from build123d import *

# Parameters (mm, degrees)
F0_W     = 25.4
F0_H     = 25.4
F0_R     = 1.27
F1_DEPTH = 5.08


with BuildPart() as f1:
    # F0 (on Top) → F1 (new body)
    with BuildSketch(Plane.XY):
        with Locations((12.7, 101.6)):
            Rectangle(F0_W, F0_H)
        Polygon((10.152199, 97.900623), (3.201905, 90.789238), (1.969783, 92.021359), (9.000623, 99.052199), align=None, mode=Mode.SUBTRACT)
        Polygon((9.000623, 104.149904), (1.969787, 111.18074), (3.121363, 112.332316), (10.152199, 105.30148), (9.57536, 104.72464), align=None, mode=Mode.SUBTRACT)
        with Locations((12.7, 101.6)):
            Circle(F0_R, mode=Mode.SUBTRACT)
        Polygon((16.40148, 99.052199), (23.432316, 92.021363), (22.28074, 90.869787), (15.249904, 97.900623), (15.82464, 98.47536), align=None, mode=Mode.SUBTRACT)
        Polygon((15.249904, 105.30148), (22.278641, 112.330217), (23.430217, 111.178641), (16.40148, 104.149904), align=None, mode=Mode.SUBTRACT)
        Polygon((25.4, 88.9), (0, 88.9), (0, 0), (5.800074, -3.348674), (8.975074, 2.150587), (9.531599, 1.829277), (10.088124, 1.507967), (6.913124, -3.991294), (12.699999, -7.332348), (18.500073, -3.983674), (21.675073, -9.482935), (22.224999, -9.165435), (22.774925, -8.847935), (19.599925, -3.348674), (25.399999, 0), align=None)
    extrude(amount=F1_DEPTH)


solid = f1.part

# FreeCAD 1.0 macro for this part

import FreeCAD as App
import Part
import Sketcher

V = App.Vector
Q = App.Units.Quantity

doc = App.newDocument("Part")
body = doc.addObject("PartDesign::Body", "Body")

# Sketch on XY plane
sketch1 = doc.addObject("Sketcher::SketchObject", "Sketch")
body.addObject(sketch1)
sketch1.AttachmentSupport = (doc.XY_Plane, [""])
sketch1.MapMode = "FlatFace"
sketch1.addGeometry(Part.LineSegment(V(0, 114.3, 0), V(0, 0, 0)), False)
sketch1.addGeometry(Part.LineSegment(V(0, 0, 0), V(5.800074, -3.348674, 0)), False)
sketch1.addGeometry(Part.LineSegment(V(5.800074, -3.348674, 0), V(8.975074, 2.150587, 0)), False)
sketch1.addGeometry(Part.LineSegment(V(8.975074, 2.150587, 0), V(10.088124, 1.507967, 0)), False)
sketch1.addGeometry(Part.LineSegment(V(10.088124, 1.507967, 0), V(6.913124, -3.991294, 0)), False)
sketch1.addGeometry(Part.LineSegment(V(6.913124, -3.991294, 0), V(12.699999, -7.332348, 0)), False)
sketch1.addGeometry(Part.LineSegment(V(12.699999, -7.332348, 0), V(18.500073, -3.983674, 0)), False)
sketch1.addGeometry(Part.LineSegment(V(18.500073, -3.983674, 0), V(21.675073, -9.482935, 0)), False)
sketch1.addGeometry(Part.LineSegment(V(21.675073, -9.482935, 0), V(22.774925, -8.847935, 0)), False)
sketch1.addGeometry(Part.LineSegment(V(22.774925, -8.847935, 0), V(19.599925, -3.348674, 0)), False)
sketch1.addGeometry(Part.LineSegment(V(19.599925, -3.348674, 0), V(25.399999, 0, 0)), False)
sketch1.addGeometry(Part.LineSegment(V(25.399999, 0, 0), V(25.4, 88.9, 0)), False)
sketch1.addGeometry(Part.LineSegment(V(25.4, 88.9, 0), V(25.4, 114.3, 0)), False)
sketch1.addGeometry(Part.LineSegment(V(25.4, 114.3, 0), V(0, 114.3, 0)), False)
sketch1.addGeometry(Part.LineSegment(V(9.000623, 99.052199, 0), V(10.152199, 97.900623, 0)), False)
sketch1.addGeometry(Part.LineSegment(V(10.152199, 97.900623, 0), V(3.201905, 90.789238, 0)), False)
sketch1.addGeometry(Part.LineSegment(V(3.201905, 90.789238, 0), V(1.969783, 92.021359, 0)), False)
sketch1.addGeometry(Part.LineSegment(V(1.969783, 92.021359, 0), V(9.000623, 99.052199, 0)), False)
sketch1.addGeometry(Part.LineSegment(V(15.82464, 98.47536, 0), V(16.40148, 99.052199, 0)), False)
sketch1.addGeometry(Part.LineSegment(V(16.40148, 99.052199, 0), V(23.432316, 92.021363, 0)), False)
sketch1.addGeometry(Part.LineSegment(V(23.432316, 92.021363, 0), V(22.28074, 90.869787, 0)), False)
sketch1.addGeometry(Part.LineSegment(V(22.28074, 90.869787, 0), V(15.249904, 97.900623, 0)), False)
sketch1.addGeometry(Part.LineSegment(V(15.249904, 97.900623, 0), V(15.82464, 98.47536, 0)), False)
sketch1.addGeometry(Part.Circle(V(12.7, 101.6, 0), V(0, 0, 1), 1.27), False)
sketch1.addGeometry(Part.LineSegment(V(9.57536, 104.72464, 0), V(9.000623, 104.149904, 0)), False)
sketch1.addGeometry(Part.LineSegment(V(9.000623, 104.149904, 0), V(1.969787, 111.18074, 0)), False)
sketch1.addGeometry(Part.LineSegment(V(1.969787, 111.18074, 0), V(3.121363, 112.332316, 0)), False)
sketch1.addGeometry(Part.LineSegment(V(3.121363, 112.332316, 0), V(10.152199, 105.30148, 0)), False)
sketch1.addGeometry(Part.LineSegment(V(10.152199, 105.30148, 0), V(9.57536, 104.72464, 0)), False)
sketch1.addGeometry(Part.LineSegment(V(16.40148, 104.149904, 0), V(15.249904, 105.30148, 0)), False)
sketch1.addGeometry(Part.LineSegment(V(15.249904, 105.30148, 0), V(22.278641, 112.330217, 0)), False)
sketch1.addGeometry(Part.LineSegment(V(22.278641, 112.330217, 0), V(23.430217, 111.178641, 0)), False)
sketch1.addGeometry(Part.LineSegment(V(23.430217, 111.178641, 0), V(16.40148, 104.149904, 0)), False)
sketch1.addConstraint(Sketcher.Constraint("Coincident", 0, 2, 1, 1))
sketch1.addConstraint(Sketcher.Constraint("Coincident", 1, 2, 2, 1))
sketch1.addConstraint(Sketcher.Constraint("Coincident", 2, 2, 3, 1))
sketch1.addConstraint(Sketcher.Constraint("Coincident", 3, 2, 4, 1))
sketch1.addConstraint(Sketcher.Constraint("Coincident", 4, 2, 5, 1))
sketch1.addConstraint(Sketcher.Constraint("Coincident", 5, 2, 6, 1))
sketch1.addConstraint(Sketcher.Constraint("Coincident", 6, 2, 7, 1))
sketch1.addConstraint(Sketcher.Constraint("Coincident", 7, 2, 8, 1))
sketch1.addConstraint(Sketcher.Constraint("Coincident", 8, 2, 9, 1))
sketch1.addConstraint(Sketcher.Constraint("Coincident", 9, 2, 10, 1))
sketch1.addConstraint(Sketcher.Constraint("Coincident", 10, 2, 11, 1))
sketch1.addConstraint(Sketcher.Constraint("Coincident", 11, 2, 12, 1))
sketch1.addConstraint(Sketcher.Constraint("Coincident", 12, 2, 13, 1))
sketch1.addConstraint(Sketcher.Constraint("Coincident", 13, 2, 0, 1))
sketch1.addConstraint(Sketcher.Constraint("Coincident", 14, 2, 15, 1))
sketch1.addConstraint(Sketcher.Constraint("Coincident", 15, 2, 16, 1))
sketch1.addConstraint(Sketcher.Constraint("Coincident", 16, 2, 17, 1))
sketch1.addConstraint(Sketcher.Constraint("Coincident", 17, 2, 14, 1))
sketch1.addConstraint(Sketcher.Constraint("Coincident", 18, 2, 19, 1))
sketch1.addConstraint(Sketcher.Constraint("Coincident", 19, 2, 20, 1))
sketch1.addConstraint(Sketcher.Constraint("Coincident", 20, 2, 21, 1))
sketch1.addConstraint(Sketcher.Constraint("Coincident", 21, 2, 22, 1))
sketch1.addConstraint(Sketcher.Constraint("Coincident", 22, 2, 18, 1))
sketch1.addConstraint(Sketcher.Constraint("Coincident", 24, 2, 25, 1))
sketch1.addConstraint(Sketcher.Constraint("Coincident", 25, 2, 26, 1))
sketch1.addConstraint(Sketcher.Constraint("Coincident", 26, 2, 27, 1))
sketch1.addConstraint(Sketcher.Constraint("Coincident", 27, 2, 28, 1))
sketch1.addConstraint(Sketcher.Constraint("Coincident", 28, 2, 24, 1))
sketch1.addConstraint(Sketcher.Constraint("Coincident", 29, 2, 30, 1))
sketch1.addConstraint(Sketcher.Constraint("Coincident", 30, 2, 31, 1))
sketch1.addConstraint(Sketcher.Constraint("Coincident", 31, 2, 32, 1))
sketch1.addConstraint(Sketcher.Constraint("Coincident", 32, 2, 29, 1))
sketch1.addConstraint(Sketcher.Constraint("Vertical", 0))
sketch1.addConstraint(Sketcher.Constraint("Vertical", 11))
sketch1.addConstraint(Sketcher.Constraint("Vertical", 12))
sketch1.addConstraint(Sketcher.Constraint("Horizontal", 13))
sketch1.addConstraint(Sketcher.Constraint("Coincident", 0, 2, -1, 1))
sketch1.addConstraint(Sketcher.Constraint("PointOnObject", 10, 2, -1))
sketch1.addConstraint(Sketcher.Constraint("Diameter", 23, Q("0.1 in")))
sketch1.addConstraint(Sketcher.Constraint("DistanceX", 13, 2, 13, 1, Q("1 in")))
sketch1.addConstraint(Sketcher.Constraint("DistanceY", 12, 1, 12, 2, Q("1 in")))
sketch1.addConstraint(Sketcher.Constraint("DistanceY", 0, 2, 0, 1, Q("4.5 in")))
sketch1.addConstraint(Sketcher.Constraint("DistanceY", -1, 1, 23, 3, Q("4 in")))
sketch1.addConstraint(Sketcher.Constraint("DistanceX", -1, 1, 23, 3, Q("0.5 in")))
sketch1.addConstraint(Sketcher.Constraint("DistanceX", -1, 1, 5, 2, Q("0.5 in")))
sketch1.addConstraint(Sketcher.Constraint("DistanceX", 1, 2, 6, 2, Q("0.5 in")))
sketch1.addConstraint(Sketcher.Constraint("Distance", 2, Q("0.25 in")))
sketch1.addConstraint(Sketcher.Constraint("Distance", 4, Q("0.25 in")))
sketch1.addConstraint(Sketcher.Constraint("Distance", 7, Q("0.25 in")))
sketch1.addConstraint(Sketcher.Constraint("Distance", 8, Q("0.05 in")))
sketch1.addConstraint(Sketcher.Constraint("Distance", 9, Q("0.25 in")))
sketch1.addConstraint(Sketcher.Constraint("Distance", 22, Q("0.032 in")))
sketch1.addConstraint(Sketcher.Constraint("Distance", 24, Q("0.032 in")))
sketch1.addConstraint(Sketcher.Constraint("DistanceX", 1, 2, 2, 2, Q("0.125 in")))
sketch1.addConstraint(Sketcher.Constraint("DistanceX", 4, 2, 3, 2, Q("0.125 in")))
sketch1.addConstraint(Sketcher.Constraint("DistanceY", 6, 2, 1, 2, Q("0.025 in")))
sketch1.addConstraint(Sketcher.Constraint("DistanceX", 6, 2, 7, 2, Q("0.125 in")))
sketch1.addConstraint(Sketcher.Constraint("DistanceY", 7, 2, 8, 2, Q("0.025 in")))
sketch1.addConstraint(Sketcher.Constraint("DistanceY", 6, 2, 9, 2, Q("0.025 in")))
sketch1.addConstraint(Sketcher.Constraint("Distance", 3, Q("0.0506 in")))
sketch1.addConstraint(Sketcher.Constraint("DistanceY", 3, 2, 2, 2, Q("0.0253 in")))
sketch1.addConstraint(Sketcher.Constraint("DistanceX", -1, 1, 14, 2, Q("10.152199 mm")))
sketch1.addConstraint(Sketcher.Constraint("DistanceY", -1, 1, 17, 2, Q("99.052199 mm")))
sketch1.addConstraint(Sketcher.Constraint("DistanceY", -1, 1, 18, 2, Q("99.052199 mm")))
sketch1.addConstraint(Sketcher.Constraint("DistanceX", -1, 1, 27, 2, Q("10.152199 mm")))
sketch1.addConstraint(Sketcher.Constraint("Distance", 1, Q("6.697348 mm")))
sketch1.addConstraint(Sketcher.Constraint("Distance", 6, Q("6.697348 mm")))
sketch1.addConstraint(Sketcher.Constraint("Distance", 10, Q("6.697348 mm")))
sketch1.addConstraint(Sketcher.Constraint("Distance", 15, Q("9.943761 mm")))
sketch1.addConstraint(Sketcher.Constraint("Distance", 17, Q("9.943109 mm")))
sketch1.addConstraint(Sketcher.Constraint("DistanceY", -1, 1, 16, 2, Q("92.021359 mm")))
sketch1.addConstraint(Sketcher.Constraint("DistanceX", -1, 1, 18, 2, Q("16.40148 mm")))
sketch1.addConstraint(Sketcher.Constraint("DistanceX", -1, 1, 20, 2, Q("22.28074 mm")))
sketch1.addConstraint(Sketcher.Constraint("DistanceX", -1, 1, 22, 2, Q("15.82464 mm")))
sketch1.addConstraint(Sketcher.Constraint("DistanceY", -1, 1, 22, 2, Q("98.47536 mm")))
sketch1.addConstraint(Sketcher.Constraint("DistanceY", -1, 1, 25, 2, Q("111.18074 mm")))
sketch1.addConstraint(Sketcher.Constraint("DistanceY", -1, 1, 27, 2, Q("105.30148 mm")))
sketch1.addConstraint(Sketcher.Constraint("DistanceX", -1, 1, 28, 2, Q("9.57536 mm")))
sketch1.addConstraint(Sketcher.Constraint("DistanceY", -1, 1, 28, 2, Q("104.72464 mm")))
sketch1.addConstraint(Sketcher.Constraint("DistanceY", -1, 1, 29, 2, Q("105.30148 mm")))
sketch1.addConstraint(Sketcher.Constraint("DistanceX", -1, 1, 30, 2, Q("22.278641 mm")))
sketch1.addConstraint(Sketcher.Constraint("DistanceY", -1, 1, 31, 2, Q("111.178641 mm")))
sketch1.addConstraint(Sketcher.Constraint("DistanceX", -1, 1, 32, 2, Q("16.40148 mm")))
sketch1.addConstraint(Sketcher.Constraint("DistanceY", 15, 2, 23, 3, Q("10.810762 mm")))
sketch1.addConstraint(Sketcher.Constraint("DistanceX", 16, 2, 15, 2, Q("1.232122 mm")))
sketch1.addConstraint(Sketcher.Constraint("DistanceY", 19, 2, 14, 2, Q("5.87926 mm")))
sketch1.addConstraint(Sketcher.Constraint("DistanceY", 20, 2, 18, 2, Q("8.182412 mm")))
sketch1.addConstraint(Sketcher.Constraint("DistanceX", 17, 2, 21, 2, Q("6.249281 mm")))
sketch1.addConstraint(Sketcher.Constraint("DistanceY", 14, 2, 24, 2, Q("6.249281 mm")))
sketch1.addConstraint(Sketcher.Constraint("DistanceX", 24, 2, 21, 2, Q("6.249281 mm")))
sketch1.addConstraint(Sketcher.Constraint("DistanceX", 25, 2, 14, 2, Q("8.182412 mm")))
sketch1.addConstraint(Sketcher.Constraint("DistanceX", 26, 2, 24, 2, Q("5.87926 mm")))
sketch1.addConstraint(Sketcher.Constraint("DistanceY", 24, 2, 26, 2, Q("8.182412 mm")))
sketch1.addConstraint(Sketcher.Constraint("DistanceX", 24, 2, 29, 2, Q("6.249281 mm")))
sketch1.addConstraint(Sketcher.Constraint("DistanceY", 18, 2, 30, 2, Q("13.278018 mm")))
sketch1.addConstraint(Sketcher.Constraint("Distance", 19, Q("9.943104 mm")))
sketch1.addConstraint(Sketcher.Constraint("Distance", 29, Q("1.628574 mm")))
sketch1.addConstraint(Sketcher.Constraint("Distance", 31, Q("1.628574 mm")))
pad1 = doc.addObject("PartDesign::Pad", "Pad")
body.addObject(pad1)
pad1.Profile = sketch1
pad1.Length = Q("0.2 in")

doc.recompute()
